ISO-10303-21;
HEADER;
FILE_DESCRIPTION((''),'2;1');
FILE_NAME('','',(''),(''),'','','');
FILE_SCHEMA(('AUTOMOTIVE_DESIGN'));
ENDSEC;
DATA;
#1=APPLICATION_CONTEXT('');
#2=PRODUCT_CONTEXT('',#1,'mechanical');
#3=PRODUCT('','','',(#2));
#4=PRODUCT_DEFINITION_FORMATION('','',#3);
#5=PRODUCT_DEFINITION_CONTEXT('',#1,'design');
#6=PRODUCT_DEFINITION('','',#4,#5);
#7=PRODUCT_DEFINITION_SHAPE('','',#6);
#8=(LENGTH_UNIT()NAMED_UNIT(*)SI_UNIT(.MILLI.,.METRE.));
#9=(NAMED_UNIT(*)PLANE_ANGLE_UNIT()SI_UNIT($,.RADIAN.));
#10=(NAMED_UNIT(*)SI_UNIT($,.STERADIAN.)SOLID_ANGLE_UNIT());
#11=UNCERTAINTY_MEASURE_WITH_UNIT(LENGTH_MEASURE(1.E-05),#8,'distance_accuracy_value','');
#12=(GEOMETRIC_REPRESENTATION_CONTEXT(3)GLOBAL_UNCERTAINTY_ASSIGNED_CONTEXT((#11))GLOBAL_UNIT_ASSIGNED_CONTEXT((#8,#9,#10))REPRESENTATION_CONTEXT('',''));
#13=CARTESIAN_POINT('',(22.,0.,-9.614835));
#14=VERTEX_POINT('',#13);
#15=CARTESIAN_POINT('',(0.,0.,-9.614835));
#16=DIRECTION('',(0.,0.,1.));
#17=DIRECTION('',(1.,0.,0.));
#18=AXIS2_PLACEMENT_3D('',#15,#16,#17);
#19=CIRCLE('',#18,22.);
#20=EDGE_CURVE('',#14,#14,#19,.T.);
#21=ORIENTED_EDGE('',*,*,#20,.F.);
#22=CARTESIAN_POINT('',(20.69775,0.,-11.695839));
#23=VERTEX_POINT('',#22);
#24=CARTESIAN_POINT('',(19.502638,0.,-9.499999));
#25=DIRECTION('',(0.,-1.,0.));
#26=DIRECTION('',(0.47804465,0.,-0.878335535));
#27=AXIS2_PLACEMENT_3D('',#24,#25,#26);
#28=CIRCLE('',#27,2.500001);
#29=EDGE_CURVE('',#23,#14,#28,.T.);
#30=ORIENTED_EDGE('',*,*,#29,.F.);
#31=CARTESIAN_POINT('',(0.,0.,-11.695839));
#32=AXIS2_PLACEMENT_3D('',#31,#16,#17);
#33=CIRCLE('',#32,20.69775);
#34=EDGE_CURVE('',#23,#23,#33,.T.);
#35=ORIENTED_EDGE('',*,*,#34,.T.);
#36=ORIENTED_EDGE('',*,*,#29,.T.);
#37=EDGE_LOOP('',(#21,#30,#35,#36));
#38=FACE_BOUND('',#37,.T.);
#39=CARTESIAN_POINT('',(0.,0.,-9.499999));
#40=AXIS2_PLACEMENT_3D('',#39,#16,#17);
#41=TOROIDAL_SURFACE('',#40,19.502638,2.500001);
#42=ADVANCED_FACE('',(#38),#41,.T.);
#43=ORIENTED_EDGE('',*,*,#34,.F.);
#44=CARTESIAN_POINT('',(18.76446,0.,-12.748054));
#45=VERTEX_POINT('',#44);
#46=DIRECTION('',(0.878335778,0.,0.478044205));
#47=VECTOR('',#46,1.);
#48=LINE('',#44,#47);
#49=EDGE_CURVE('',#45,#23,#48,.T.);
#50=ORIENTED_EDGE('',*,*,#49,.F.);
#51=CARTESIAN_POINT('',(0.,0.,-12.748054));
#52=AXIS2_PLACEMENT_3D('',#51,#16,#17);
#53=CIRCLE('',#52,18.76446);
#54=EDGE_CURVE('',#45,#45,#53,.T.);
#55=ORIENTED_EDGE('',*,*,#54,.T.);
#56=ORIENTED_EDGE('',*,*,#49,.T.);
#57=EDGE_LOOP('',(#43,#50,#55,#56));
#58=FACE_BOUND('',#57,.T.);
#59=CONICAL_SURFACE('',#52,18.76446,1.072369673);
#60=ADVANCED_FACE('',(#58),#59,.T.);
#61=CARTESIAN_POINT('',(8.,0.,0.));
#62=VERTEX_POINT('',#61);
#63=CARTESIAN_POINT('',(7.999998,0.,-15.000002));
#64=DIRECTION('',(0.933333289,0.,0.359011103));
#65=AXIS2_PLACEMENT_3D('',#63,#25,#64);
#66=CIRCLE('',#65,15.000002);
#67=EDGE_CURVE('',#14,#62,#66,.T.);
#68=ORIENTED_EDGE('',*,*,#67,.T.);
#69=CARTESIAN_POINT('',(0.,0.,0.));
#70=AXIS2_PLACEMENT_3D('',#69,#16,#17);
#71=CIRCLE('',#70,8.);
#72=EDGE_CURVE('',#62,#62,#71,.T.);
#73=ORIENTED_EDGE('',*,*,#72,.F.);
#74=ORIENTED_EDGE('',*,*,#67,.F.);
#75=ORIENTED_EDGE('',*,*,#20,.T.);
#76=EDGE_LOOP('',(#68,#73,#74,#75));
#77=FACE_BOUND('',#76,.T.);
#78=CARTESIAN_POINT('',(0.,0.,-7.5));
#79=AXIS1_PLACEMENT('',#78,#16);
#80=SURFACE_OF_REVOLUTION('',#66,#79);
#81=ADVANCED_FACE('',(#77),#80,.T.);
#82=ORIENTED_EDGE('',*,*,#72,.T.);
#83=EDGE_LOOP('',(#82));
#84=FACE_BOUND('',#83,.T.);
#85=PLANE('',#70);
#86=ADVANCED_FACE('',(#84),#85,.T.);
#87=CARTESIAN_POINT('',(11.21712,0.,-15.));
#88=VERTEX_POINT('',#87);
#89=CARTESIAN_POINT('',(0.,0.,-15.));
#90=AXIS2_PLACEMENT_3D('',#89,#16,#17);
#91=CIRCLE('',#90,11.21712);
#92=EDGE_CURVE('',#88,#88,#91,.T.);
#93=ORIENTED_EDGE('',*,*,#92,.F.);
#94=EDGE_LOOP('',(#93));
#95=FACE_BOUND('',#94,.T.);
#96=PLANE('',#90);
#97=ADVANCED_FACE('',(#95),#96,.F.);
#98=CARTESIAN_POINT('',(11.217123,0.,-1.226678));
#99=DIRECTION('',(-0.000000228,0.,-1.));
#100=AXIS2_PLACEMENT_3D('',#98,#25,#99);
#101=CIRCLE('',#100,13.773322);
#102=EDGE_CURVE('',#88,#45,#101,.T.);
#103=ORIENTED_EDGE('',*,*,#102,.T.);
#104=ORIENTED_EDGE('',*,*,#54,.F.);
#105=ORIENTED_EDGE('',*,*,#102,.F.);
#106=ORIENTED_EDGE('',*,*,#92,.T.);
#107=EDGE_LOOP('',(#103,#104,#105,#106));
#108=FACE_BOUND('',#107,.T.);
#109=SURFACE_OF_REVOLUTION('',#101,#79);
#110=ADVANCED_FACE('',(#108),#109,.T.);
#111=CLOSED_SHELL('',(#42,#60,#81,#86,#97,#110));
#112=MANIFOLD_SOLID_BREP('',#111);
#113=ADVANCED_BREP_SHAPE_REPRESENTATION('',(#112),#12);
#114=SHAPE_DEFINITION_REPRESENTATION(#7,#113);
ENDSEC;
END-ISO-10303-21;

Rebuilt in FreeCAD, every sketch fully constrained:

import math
import FreeCAD as App
import Part
import Sketcher
from FreeCAD import Vector
Q = App.Units.Quantity

doc = App.newDocument("Part")
body = doc.addObject("PartDesign::Body", "Body")

# Sketch on XZ plane
sketch1 = body.newObject("Sketcher::SketchObject", "Sketch")
sketch1.AttachmentSupport = (doc.getObject("XZ_Plane"), [""])
sketch1.MapMode = "FlatFace"
sketch1.addGeometry(Part.LineSegment(Vector(8, 0, 0), Vector(0, 0, 0)), False)
sketch1.addGeometry(Part.LineSegment(Vector(0, 0, 0), Vector(0, -15, 0)), False)
sketch1.addGeometry(Part.LineSegment(Vector(0, -15, 0), Vector(11.2, -15, 0)), False)
sketch1.addGeometry(Part.ArcOfCircle(Part.Circle(Vector(11.2, -1.2, 0), Vector(0, 0, 1), 13.8), math.radians(-90), math.radians(-57)), False)
sketch1.addGeometry(Part.LineSegment(Vector(18.8, -12.7, 0), Vector(20.7, -11.7, 0)), False)
sketch1.addGeometry(Part.ArcOfCircle(Part.Circle(Vector(19.5, -9.5, 0), Vector(0, 0, 1), 2.5), math.radians(-61), math.radians(-3)), False)
sketch1.addGeometry(Part.ArcOfCircle(Part.Circle(Vector(8, -15, 0), Vector(0, 0, 1), 15), math.radians(21), math.radians(90)), False)
sketch1.addConstraint(Sketcher.Constraint("Coincident", 0, 2, 1, 1))
sketch1.addConstraint(Sketcher.Constraint("Coincident", 1, 2, 2, 1))
sketch1.addConstraint(Sketcher.Constraint("Tangent", 2, 2, 3, 1))
sketch1.addConstraint(Sketcher.Constraint("Coincident", 3, 2, 4, 1))
sketch1.addConstraint(Sketcher.Constraint("Tangent", 4, 2, 5, 1))
sketch1.addConstraint(Sketcher.Constraint("Coincident", 5, 2, 6, 1))
sketch1.addConstraint(Sketcher.Constraint("Tangent", 6, 2, 0, 1))
sketch1.addConstraint(Sketcher.Constraint("Horizontal", 0))
sketch1.addConstraint(Sketcher.Constraint("Vertical", 1))
sketch1.addConstraint(Sketcher.Constraint("Horizontal", 2))
sketch1.addConstraint(Sketcher.Constraint("Coincident", 0, 2, -1, 1))
sketch1.addConstraint(Sketcher.Constraint("Radius", 5, Q("2.500001 mm")))
sketch1.addConstraint(Sketcher.Constraint("DistanceX", 0, 2, 0, 1, Q("8 mm")))
sketch1.addConstraint(Sketcher.Constraint("DistanceY", 1, 2, 1, 1, Q("15 mm")))
sketch1.addConstraint(Sketcher.Constraint("DistanceX", -1, 1, 5, 2, Q("22 mm")))
sketch1.addConstraint(Sketcher.Constraint("DistanceY", 5, 3, -1, 1, Q("9.499999 mm")))
sketch1.addConstraint(Sketcher.Constraint("Radius", 3, Q("13.773322 mm")))
sketch1.addConstraint(Sketcher.Constraint("Radius", 6, Q("15.000002 mm")))
sketch1.addConstraint(Sketcher.Constraint("DistanceX", 2, 1, 2, 2, Q("11.21712 mm")))
sketch1.addConstraint(Sketcher.Constraint("DistanceX", -1, 1, 3, 2, Q("18.76446 mm")))
revolution = body.newObject("PartDesign::Revolution", "Revolution")
revolution.Profile = sketch1
revolution.ReferenceAxis = (sketch1, ["V_Axis"])
revolution.Angle = 360

doc.recompute()
